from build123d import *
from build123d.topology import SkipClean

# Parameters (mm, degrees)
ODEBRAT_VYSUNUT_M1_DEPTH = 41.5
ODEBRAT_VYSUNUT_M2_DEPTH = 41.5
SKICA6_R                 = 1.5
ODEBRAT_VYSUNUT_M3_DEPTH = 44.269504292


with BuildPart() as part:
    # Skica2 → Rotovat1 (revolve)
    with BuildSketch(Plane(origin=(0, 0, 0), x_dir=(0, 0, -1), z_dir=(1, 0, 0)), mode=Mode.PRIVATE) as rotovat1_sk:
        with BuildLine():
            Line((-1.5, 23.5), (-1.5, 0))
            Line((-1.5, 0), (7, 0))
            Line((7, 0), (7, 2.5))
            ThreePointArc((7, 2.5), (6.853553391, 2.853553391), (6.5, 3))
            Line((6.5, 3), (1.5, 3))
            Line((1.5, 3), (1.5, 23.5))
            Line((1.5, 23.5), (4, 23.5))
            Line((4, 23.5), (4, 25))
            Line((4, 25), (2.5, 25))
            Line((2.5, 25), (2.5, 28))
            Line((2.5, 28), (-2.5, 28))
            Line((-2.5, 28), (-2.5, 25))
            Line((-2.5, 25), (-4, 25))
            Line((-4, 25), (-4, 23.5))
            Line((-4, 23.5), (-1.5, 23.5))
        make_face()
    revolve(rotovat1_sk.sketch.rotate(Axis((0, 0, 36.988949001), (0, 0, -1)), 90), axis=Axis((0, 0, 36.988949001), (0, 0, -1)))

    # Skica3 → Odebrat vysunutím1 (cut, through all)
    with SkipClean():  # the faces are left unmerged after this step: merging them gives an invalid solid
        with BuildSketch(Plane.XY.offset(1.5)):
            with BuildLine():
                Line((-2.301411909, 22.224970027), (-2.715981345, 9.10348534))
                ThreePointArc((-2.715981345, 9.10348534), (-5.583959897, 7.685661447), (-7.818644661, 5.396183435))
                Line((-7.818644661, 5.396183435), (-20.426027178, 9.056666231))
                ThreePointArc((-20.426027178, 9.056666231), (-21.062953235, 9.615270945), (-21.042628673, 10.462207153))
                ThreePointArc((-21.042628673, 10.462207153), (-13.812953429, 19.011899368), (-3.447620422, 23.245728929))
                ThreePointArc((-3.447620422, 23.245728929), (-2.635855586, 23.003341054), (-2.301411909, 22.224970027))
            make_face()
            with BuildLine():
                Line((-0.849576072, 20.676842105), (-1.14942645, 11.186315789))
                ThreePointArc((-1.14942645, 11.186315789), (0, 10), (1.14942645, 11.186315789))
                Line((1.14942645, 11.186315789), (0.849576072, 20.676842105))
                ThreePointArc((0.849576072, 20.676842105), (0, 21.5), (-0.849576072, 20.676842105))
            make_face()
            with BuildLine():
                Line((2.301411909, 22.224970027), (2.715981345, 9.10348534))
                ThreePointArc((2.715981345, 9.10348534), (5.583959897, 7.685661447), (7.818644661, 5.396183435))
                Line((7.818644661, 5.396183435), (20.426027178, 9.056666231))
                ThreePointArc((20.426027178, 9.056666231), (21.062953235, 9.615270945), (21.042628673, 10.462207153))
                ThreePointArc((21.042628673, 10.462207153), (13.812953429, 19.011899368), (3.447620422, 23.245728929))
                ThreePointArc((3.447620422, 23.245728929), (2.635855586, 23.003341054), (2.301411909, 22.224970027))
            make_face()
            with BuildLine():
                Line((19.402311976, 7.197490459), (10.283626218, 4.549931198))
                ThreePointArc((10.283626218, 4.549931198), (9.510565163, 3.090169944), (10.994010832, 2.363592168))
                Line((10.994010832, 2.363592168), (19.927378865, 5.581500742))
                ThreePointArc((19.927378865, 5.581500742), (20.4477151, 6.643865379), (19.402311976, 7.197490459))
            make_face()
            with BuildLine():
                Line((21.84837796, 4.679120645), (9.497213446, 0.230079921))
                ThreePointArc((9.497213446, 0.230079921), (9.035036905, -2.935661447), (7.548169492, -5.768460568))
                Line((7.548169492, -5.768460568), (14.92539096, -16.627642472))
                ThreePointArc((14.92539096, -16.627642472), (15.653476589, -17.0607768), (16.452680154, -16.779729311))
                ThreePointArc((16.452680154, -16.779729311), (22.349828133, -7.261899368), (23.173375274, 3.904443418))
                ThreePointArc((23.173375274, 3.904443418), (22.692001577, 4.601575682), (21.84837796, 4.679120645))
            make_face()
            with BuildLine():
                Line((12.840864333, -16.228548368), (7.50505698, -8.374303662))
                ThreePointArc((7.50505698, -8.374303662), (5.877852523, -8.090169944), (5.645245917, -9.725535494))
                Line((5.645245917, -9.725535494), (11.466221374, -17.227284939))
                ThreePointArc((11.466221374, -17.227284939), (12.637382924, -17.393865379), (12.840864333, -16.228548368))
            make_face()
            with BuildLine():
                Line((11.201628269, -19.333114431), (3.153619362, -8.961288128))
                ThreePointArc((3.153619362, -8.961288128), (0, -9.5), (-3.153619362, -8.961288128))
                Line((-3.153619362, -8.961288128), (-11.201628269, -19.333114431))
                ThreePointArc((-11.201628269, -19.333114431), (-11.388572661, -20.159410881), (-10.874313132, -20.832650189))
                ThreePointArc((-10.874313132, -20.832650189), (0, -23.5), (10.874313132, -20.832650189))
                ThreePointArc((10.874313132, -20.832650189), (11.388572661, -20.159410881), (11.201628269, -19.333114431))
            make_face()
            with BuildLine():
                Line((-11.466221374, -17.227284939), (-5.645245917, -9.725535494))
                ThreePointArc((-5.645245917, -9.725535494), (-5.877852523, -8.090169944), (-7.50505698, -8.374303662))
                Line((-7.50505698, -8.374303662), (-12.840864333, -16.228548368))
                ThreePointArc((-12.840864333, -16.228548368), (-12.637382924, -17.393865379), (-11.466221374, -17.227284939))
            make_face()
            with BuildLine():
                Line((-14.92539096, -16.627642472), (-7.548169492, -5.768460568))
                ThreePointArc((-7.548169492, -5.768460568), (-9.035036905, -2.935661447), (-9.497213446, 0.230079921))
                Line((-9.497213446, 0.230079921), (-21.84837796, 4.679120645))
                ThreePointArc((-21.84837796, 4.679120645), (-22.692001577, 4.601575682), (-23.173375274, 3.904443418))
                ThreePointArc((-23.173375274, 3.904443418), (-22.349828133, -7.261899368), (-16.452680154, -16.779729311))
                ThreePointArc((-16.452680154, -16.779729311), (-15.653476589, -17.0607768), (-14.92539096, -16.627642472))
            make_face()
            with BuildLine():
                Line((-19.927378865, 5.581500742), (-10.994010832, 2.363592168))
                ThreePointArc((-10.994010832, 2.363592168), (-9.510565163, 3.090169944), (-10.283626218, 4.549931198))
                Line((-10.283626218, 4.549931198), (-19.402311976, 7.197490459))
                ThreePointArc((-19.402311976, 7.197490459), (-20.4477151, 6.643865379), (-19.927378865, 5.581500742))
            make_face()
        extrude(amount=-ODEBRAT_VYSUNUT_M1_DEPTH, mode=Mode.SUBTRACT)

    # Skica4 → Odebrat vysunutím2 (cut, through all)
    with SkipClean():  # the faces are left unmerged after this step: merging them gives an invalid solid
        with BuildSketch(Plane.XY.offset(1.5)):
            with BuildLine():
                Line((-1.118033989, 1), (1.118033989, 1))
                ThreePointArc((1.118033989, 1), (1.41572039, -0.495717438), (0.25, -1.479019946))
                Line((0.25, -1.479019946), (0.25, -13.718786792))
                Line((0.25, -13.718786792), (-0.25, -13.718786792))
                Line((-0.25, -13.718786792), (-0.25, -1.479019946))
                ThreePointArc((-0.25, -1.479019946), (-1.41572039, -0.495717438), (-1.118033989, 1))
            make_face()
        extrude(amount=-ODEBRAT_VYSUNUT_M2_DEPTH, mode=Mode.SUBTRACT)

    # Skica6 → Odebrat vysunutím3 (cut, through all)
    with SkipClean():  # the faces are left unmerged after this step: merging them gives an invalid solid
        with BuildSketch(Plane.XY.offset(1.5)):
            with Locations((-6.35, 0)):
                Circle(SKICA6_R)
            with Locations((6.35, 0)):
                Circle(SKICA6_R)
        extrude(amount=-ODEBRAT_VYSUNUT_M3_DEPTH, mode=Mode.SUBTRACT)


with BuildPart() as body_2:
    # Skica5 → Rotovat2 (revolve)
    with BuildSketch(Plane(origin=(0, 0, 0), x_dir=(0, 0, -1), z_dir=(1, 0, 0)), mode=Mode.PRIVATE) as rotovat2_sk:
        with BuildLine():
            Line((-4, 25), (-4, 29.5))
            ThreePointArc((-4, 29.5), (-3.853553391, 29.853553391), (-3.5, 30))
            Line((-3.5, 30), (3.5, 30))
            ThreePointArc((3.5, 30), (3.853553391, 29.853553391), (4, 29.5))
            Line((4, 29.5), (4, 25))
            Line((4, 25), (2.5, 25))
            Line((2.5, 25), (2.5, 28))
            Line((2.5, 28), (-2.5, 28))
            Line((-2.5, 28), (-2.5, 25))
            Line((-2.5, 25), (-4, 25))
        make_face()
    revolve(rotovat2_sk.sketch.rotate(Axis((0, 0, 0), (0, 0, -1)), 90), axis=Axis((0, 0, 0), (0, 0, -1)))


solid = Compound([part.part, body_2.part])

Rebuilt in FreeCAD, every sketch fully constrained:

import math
import FreeCAD as App
import Part
import Sketcher

V = App.Vector

doc = App.newDocument("Part")
body = doc.addObject("PartDesign::Body", "Body")

sketch1 = body.newObject("Sketcher::SketchObject", "Sketch")
sketch1.AttachmentSupport = (doc.getObject("YZ_Plane"), [""])
sketch1.MapMode = "FlatFace"
sketch1.addGeometry(Part.LineSegment(V(23.5, 1.5, 0), V(0, 1.5, 0)), False)
sketch1.addGeometry(Part.LineSegment(V(0, 1.5, 0), V(0, -7, 0)), False)
sketch1.addGeometry(Part.LineSegment(V(0, -7, 0), V(2.5, -7, 0)), False)
sketch1.addGeometry(Part.ArcOfCircle(Part.Circle(V(2.5, -6.5, 0), V(0, 0, 1), 0.5), math.radians(-90), math.radians(0)), False)
sketch1.addGeometry(Part.LineSegment(V(3, -6.5, 0), V(3, -1.5, 0)), False)
sketch1.addGeometry(Part.LineSegment(V(3, -1.5, 0), V(23.5, -1.5, 0)), False)
sketch1.addGeometry(Part.LineSegment(V(23.5, -1.5, 0), V(23.5, -4, 0)), False)
sketch1.addGeometry(Part.LineSegment(V(23.5, -4, 0), V(25, -4, 0)), False)
sketch1.addGeometry(Part.LineSegment(V(25, -4, 0), V(25, -2.5, 0)), False)
sketch1.addGeometry(Part.LineSegment(V(25, -2.5, 0), V(28, -2.5, 0)), False)
sketch1.addGeometry(Part.LineSegment(V(28, -2.5, 0), V(28, 2.5, 0)), False)
sketch1.addGeometry(Part.LineSegment(V(28, 2.5, 0), V(25, 2.5, 0)), False)
sketch1.addGeometry(Part.LineSegment(V(25, 2.5, 0), V(25, 4, 0)), False)
sketch1.addGeometry(Part.LineSegment(V(25, 4, 0), V(23.5, 4, 0)), False)
sketch1.addGeometry(Part.LineSegment(V(23.5, 4, 0), V(23.5, 1.5, 0)), False)
sketch1.addConstraint(Sketcher.Constraint("Coincident", 0, 2, 1, 1))
sketch1.addConstraint(Sketcher.Constraint("Coincident", 1, 2, 2, 1))
sketch1.addConstraint(Sketcher.Constraint("Tangent", 2, 2, 3, 1))
sketch1.addConstraint(Sketcher.Constraint("Tangent", 3, 2, 4, 1))
sketch1.addConstraint(Sketcher.Constraint("Coincident", 4, 2, 5, 1))
sketch1.addConstraint(Sketcher.Constraint("Coincident", 5, 2, 6, 1))
sketch1.addConstraint(Sketcher.Constraint("Coincident", 6, 2, 7, 1))
sketch1.addConstraint(Sketcher.Constraint("Coincident", 7, 2, 8, 1))
sketch1.addConstraint(Sketcher.Constraint("Coincident", 8, 2, 9, 1))
sketch1.addConstraint(Sketcher.Constraint("Coincident", 9, 2, 10, 1))
sketch1.addConstraint(Sketcher.Constraint("Coincident", 10, 2, 11, 1))
sketch1.addConstraint(Sketcher.Constraint("Coincident", 11, 2, 12, 1))
sketch1.addConstraint(Sketcher.Constraint("Coincident", 12, 2, 13, 1))
sketch1.addConstraint(Sketcher.Constraint("Coincident", 13, 2, 14, 1))
sketch1.addConstraint(Sketcher.Constraint("Coincident", 14, 2, 0, 1))
sketch1.addConstraint(Sketcher.Constraint("Horizontal", 0))
sketch1.addConstraint(Sketcher.Constraint("Vertical", 1))
sketch1.addConstraint(Sketcher.Constraint("Horizontal", 2))
sketch1.addConstraint(Sketcher.Constraint("Vertical", 4))
sketch1.addConstraint(Sketcher.Constraint("Horizontal", 5))
sketch1.addConstraint(Sketcher.Constraint("Vertical", 6))
sketch1.addConstraint(Sketcher.Constraint("Horizontal", 7))
sketch1.addConstraint(Sketcher.Constraint("Vertical", 8))
sketch1.addConstraint(Sketcher.Constraint("Horizontal", 9))
sketch1.addConstraint(Sketcher.Constraint("Vertical", 10))
sketch1.addConstraint(Sketcher.Constraint("Horizontal", 11))
sketch1.addConstraint(Sketcher.Constraint("Vertical", 12))
sketch1.addConstraint(Sketcher.Constraint("Horizontal", 13))
sketch1.addConstraint(Sketcher.Constraint("Vertical", 14))
sketch1.addConstraint(Sketcher.Constraint("Symmetric", 8, 2, 11, 2, -1))
sketch1.addConstraint(Sketcher.Constraint("Symmetric", 6, 2, 13, 2, -1))
sketch1.addConstraint(Sketcher.Constraint("PointOnObject", 0, 2, -2))
sketch1.addConstraint(Sketcher.Constraint("Equal", 2, 6))
sketch1.addConstraint(Sketcher.Constraint("Equal", 13, 8))
sketch1.addConstraint(Sketcher.Constraint("Equal", 4, 10))
sketch1.addConstraint(Sketcher.Constraint("Equal", 6, 14))
sketch1.addConstraint(Sketcher.Constraint("Radius", 3, 0.5))
sketch1.addConstraint(Sketcher.Constraint("DistanceX", 9, 1, 9, 2, 3.0))
sketch1.addConstraint(Sketcher.Constraint("DistanceY", 4, 1, 4, 2, 5.0))
sketch1.addConstraint(Sketcher.Constraint("DistanceX", 0, 2, 0, 1, 23.5))
sketch1.addConstraint(Sketcher.Constraint("DistanceX", 2, 1, 2, 2, 2.5))
sketch1.addConstraint(Sketcher.Constraint("DistanceX", 7, 1, 7, 2, 1.5))
revolution = body.newObject("PartDesign::Revolution", "Revolution")
revolution.Profile = sketch1
revolution.ReferenceAxis = (sketch1, ["V_Axis"])
revolution.Angle = 360

sketch2 = body.newObject("Sketcher::SketchObject", "Sketch001")
sketch2.AttachmentSupport = (doc.getObject("XY_Plane"), [""])
sketch2.MapMode = "FlatFace"
sketch2.AttachmentOffset = App.Placement(V(0, 0, 1.5), App.Rotation())
sketch2.addGeometry(Part.LineSegment(V(-2.7, 9.1, 0), V(-2.3, 22.2, 0)), False)
sketch2.addGeometry(Part.ArcOfCircle(Part.Circle(V(-3.3, 22.3, 0), V(0, 0, 1), 1), math.radians(-2), math.radians(98)), False)
sketch2.addGeometry(Part.ArcOfCircle(Part.Circle(V(0, 0, 0), V(0, 0, 1), 23.5), math.radians(98), math.radians(154)), False)
sketch2.addGeometry(Part.ArcOfCircle(Part.Circle(V(-20.1, 10, 0), V(0, 0, 1), 1), math.radians(154), math.radians(254)), False)
sketch2.addGeometry(Part.LineSegment(V(-20.4, 9.1, 0), V(-7.8, 5.4, 0)), False)
sketch2.addGeometry(Part.ArcOfCircle(Part.Circle(V(0, 0, 0), V(0, 0, 1), 9.5), math.radians(107), math.radians(145)), False)
sketch2.addGeometry(Part.LineSegment(V(-0.8, 20.7, 0), V(-1.1, 11.2, 0)), False)
sketch2.addGeometry(Part.ArcOfCircle(Part.Circle(V(0, 11.2, 0), V(0, 0, 1), 1.1), math.radians(178), math.radians(362)), False)
sketch2.addGeometry(Part.LineSegment(V(1.1, 11.2, 0), V(0.8, 20.7, 0)), False)
sketch2.addGeometry(Part.ArcOfCircle(Part.Circle(V(0, 20.6, 0), V(0, 0, 1), 0.8), math.radians(2), math.radians(178)), False)
sketch2.addGeometry(Part.LineSegment(V(2.3, 22.2, 0), V(2.7, 9.1, 0)), False)
sketch2.addGeometry(Part.ArcOfCircle(Part.Circle(V(0, 0, 0), V(0, 0, 1), 9.5), math.radians(35), math.radians(73)), False)
sketch2.addGeometry(Part.LineSegment(V(7.8, 5.4, 0), V(20.4, 9.1, 0)), False)
sketch2.addGeometry(Part.ArcOfCircle(Part.Circle(V(20.1, 10, 0), V(0, 0, 1), 1), math.radians(-74), math.radians(26)), False)
sketch2.addGeometry(Part.ArcOfCircle(Part.Circle(V(0, 0, 0), V(0, 0, 1), 23.5), math.radians(26), math.radians(82)), False)
sketch2.addGeometry(Part.ArcOfCircle(Part.Circle(V(3.3, 22.3, 0), V(0, 0, 1), 1), math.radians(82), math.radians(182)), False)
sketch2.addGeometry(Part.LineSegment(V(19.4, 7.2, 0), V(10.3, 4.5, 0)), False)
sketch2.addGeometry(Part.ArcOfCircle(Part.Circle(V(10.6, 3.4, 0), V(0, 0, 1), 1.1), math.radians(106), math.radians(290)), False)
sketch2.addGeometry(Part.LineSegment(V(11, 2.4, 0), V(19.9, 5.6, 0)), False)
sketch2.addGeometry(Part.ArcOfCircle(Part.Circle(V(19.6, 6.4, 0), V(0, 0, 1), 0.8), math.radians(-70), math.radians(106)), False)
sketch2.addGeometry(Part.LineSegment(V(21.8, 4.7, 0), V(9.5, 0.2, 0)), False)
sketch2.addGeometry(Part.ArcOfCircle(Part.Circle(V(0, 0, 0), V(0, 0, 1), 9.5), math.radians(-37), math.radians(1)), False)
sketch2.addGeometry(Part.LineSegment(V(7.5, -5.8, 0), V(14.9, -16.6, 0)), False)
sketch2.addGeometry(Part.ArcOfCircle(Part.Circle(V(15.8, -16.1, 0), V(0, 0, 1), 1), math.radians(-146), math.radians(-46)), False)
sketch2.addGeometry(Part.ArcOfCircle(Part.Circle(V(0, 0, 0), V(0, 0, 1), 23.5), math.radians(-46), math.radians(10)), False)
sketch2.addGeometry(Part.ArcOfCircle(Part.Circle(V(22.2, 3.7, 0), V(0, 0, 1), 1), math.radians(10), math.radians(110)), False)
sketch2.addGeometry(Part.LineSegment(V(12.8, -16.2, 0), V(7.5, -8.4, 0)), False)
sketch2.addGeometry(Part.ArcOfCircle(Part.Circle(V(6.6, -9, 0), V(0, 0, 1), 1.1), math.radians(34), math.radians(218)), False)
sketch2.addGeometry(Part.LineSegment(V(5.6, -9.7, 0), V(11.5, -17.2, 0)), False)
sketch2.addGeometry(Part.ArcOfCircle(Part.Circle(V(12.1, -16.7, 0), V(0, 0, 1), 0.8), math.radians(-142), math.radians(34)), False)
sketch2.addGeometry(Part.LineSegment(V(11.2, -19.3, 0), V(3.2, -9, 0)), False)
sketch2.addGeometry(Part.ArcOfCircle(Part.Circle(V(0, 0, 0), V(0, 0, 1), 9.5), math.radians(-109), math.radians(-71)), False)
sketch2.addGeometry(Part.LineSegment(V(-3.2, -9, 0), V(-11.2, -19.3, 0)), False)
sketch2.addGeometry(Part.ArcOfCircle(Part.Circle(V(-10.4, -19.9, 0), V(0, 0, 1), 1), math.radians(142), math.radians(242)), False)
sketch2.addGeometry(Part.ArcOfCircle(Part.Circle(V(0, 0, 0), V(0, 0, 1), 23.5), math.radians(-118), math.radians(-62)), False)
sketch2.addGeometry(Part.ArcOfCircle(Part.Circle(V(10.4, -19.9, 0), V(0, 0, 1), 1), math.radians(-62), math.radians(38)), False)
sketch2.addGeometry(Part.LineSegment(V(-11.5, -17.2, 0), V(-5.6, -9.7, 0)), False)
sketch2.addGeometry(Part.ArcOfCircle(Part.Circle(V(-6.6, -9, 0), V(0, 0, 1), 1.1), math.radians(-38), math.radians(146)), False)
sketch2.addGeometry(Part.LineSegment(V(-7.5, -8.4, 0), V(-12.8, -16.2, 0)), False)
sketch2.addGeometry(Part.ArcOfCircle(Part.Circle(V(-12.1, -16.7, 0), V(0, 0, 1), 0.8), math.radians(146), math.radians(322)), False)
sketch2.addGeometry(Part.LineSegment(V(-14.9, -16.6, 0), V(-7.5, -5.8, 0)), False)
sketch2.addGeometry(Part.ArcOfCircle(Part.Circle(V(0, 0, 0), V(0, 0, 1), 9.5), math.radians(179), math.radians(217)), False)
sketch2.addGeometry(Part.LineSegment(V(-9.5, 0.2, 0), V(-21.8, 4.7, 0)), False)
sketch2.addGeometry(Part.ArcOfCircle(Part.Circle(V(-22.2, 3.7, 0), V(0, 0, 1), 1), math.radians(70), math.radians(170)), False)
sketch2.addGeometry(Part.ArcOfCircle(Part.Circle(V(0, 0, 0), V(0, 0, 1), 23.5), math.radians(170), math.radians(226)), False)
sketch2.addGeometry(Part.ArcOfCircle(Part.Circle(V(-15.8, -16.1, 0), V(0, 0, 1), 1), math.radians(-134), math.radians(-34)), False)
sketch2.addGeometry(Part.LineSegment(V(-19.9, 5.6, 0), V(-11, 2.4, 0)), False)
sketch2.addGeometry(Part.ArcOfCircle(Part.Circle(V(-10.6, 3.4, 0), V(0, 0, 1), 1.1), math.radians(-110), math.radians(74)), False)
sketch2.addGeometry(Part.LineSegment(V(-10.3, 4.5, 0), V(-19.4, 7.2, 0)), False)
sketch2.addGeometry(Part.ArcOfCircle(Part.Circle(V(-19.6, 6.4, 0), V(0, 0, 1), 0.8), math.radians(74), math.radians(250)), False)
sketch2.addConstraint(Sketcher.Constraint("Tangent", 0, 2, 1, 1))
sketch2.addConstraint(Sketcher.Constraint("Tangent", 1, 2, 2, 1))
sketch2.addConstraint(Sketcher.Constraint("Tangent", 2, 2, 3, 1))
sketch2.addConstraint(Sketcher.Constraint("Tangent", 3, 2, 4, 1))
sketch2.addConstraint(Sketcher.Constraint("Coincident", 4, 2, 5, 2))
sketch2.addConstraint(Sketcher.Constraint("Coincident", 5, 1, 0, 1))
sketch2.addConstraint(Sketcher.Constraint("Tangent", 6, 2, 7, 1))
sketch2.addConstraint(Sketcher.Constraint("Tangent", 7, 2, 8, 1))
sketch2.addConstraint(Sketcher.Constraint("Tangent", 8, 2, 9, 1))
sketch2.addConstraint(Sketcher.Constraint("Tangent", 9, 2, 6, 1))
sketch2.addConstraint(Sketcher.Constraint("Coincident", 10, 2, 11, 2))
sketch2.addConstraint(Sketcher.Constraint("Coincident", 11, 1, 12, 1))
sketch2.addConstraint(Sketcher.Constraint("Tangent", 12, 2, 13, 1))
sketch2.addConstraint(Sketcher.Constraint("Tangent", 13, 2, 14, 1))
sketch2.addConstraint(Sketcher.Constraint("Tangent", 14, 2, 15, 1))
sketch2.addConstraint(Sketcher.Constraint("Tangent", 15, 2, 10, 1))
sketch2.addConstraint(Sketcher.Constraint("Tangent", 16, 2, 17, 1))
sketch2.addConstraint(Sketcher.Constraint("Tangent", 17, 2, 18, 1))
sketch2.addConstraint(Sketcher.Constraint("Tangent", 18, 2, 19, 1))
sketch2.addConstraint(Sketcher.Constraint("Tangent", 19, 2, 16, 1))
sketch2.addConstraint(Sketcher.Constraint("Coincident", 20, 2, 21, 2))
sketch2.addConstraint(Sketcher.Constraint("Coincident", 21, 1, 22, 1))
sketch2.addConstraint(Sketcher.Constraint("Tangent", 22, 2, 23, 1))
sketch2.addConstraint(Sketcher.Constraint("Tangent", 23, 2, 24, 1))
sketch2.addConstraint(Sketcher.Constraint("Tangent", 24, 2, 25, 1))
sketch2.addConstraint(Sketcher.Constraint("Tangent", 25, 2, 20, 1))
sketch2.addConstraint(Sketcher.Constraint("Tangent", 26, 2, 27, 1))
sketch2.addConstraint(Sketcher.Constraint("Tangent", 27, 2, 28, 1))
sketch2.addConstraint(Sketcher.Constraint("Tangent", 28, 2, 29, 1))
sketch2.addConstraint(Sketcher.Constraint("Tangent", 29, 2, 26, 1))
sketch2.addConstraint(Sketcher.Constraint("Coincident", 30, 2, 31, 2))
sketch2.addConstraint(Sketcher.Constraint("Coincident", 31, 1, 32, 1))
sketch2.addConstraint(Sketcher.Constraint("Tangent", 32, 2, 33, 1))
sketch2.addConstraint(Sketcher.Constraint("Tangent", 33, 2, 34, 1))
sketch2.addConstraint(Sketcher.Constraint("Tangent", 34, 2, 35, 1))
sketch2.addConstraint(Sketcher.Constraint("Tangent", 35, 2, 30, 1))
sketch2.addConstraint(Sketcher.Constraint("Tangent", 36, 2, 37, 1))
sketch2.addConstraint(Sketcher.Constraint("Tangent", 37, 2, 38, 1))
sketch2.addConstraint(Sketcher.Constraint("Tangent", 38, 2, 39, 1))
sketch2.addConstraint(Sketcher.Constraint("Tangent", 39, 2, 36, 1))
sketch2.addConstraint(Sketcher.Constraint("Coincident", 40, 2, 41, 2))
sketch2.addConstraint(Sketcher.Constraint("Coincident", 41, 1, 42, 1))
sketch2.addConstraint(Sketcher.Constraint("Tangent", 42, 2, 43, 1))
sketch2.addConstraint(Sketcher.Constraint("Tangent", 43, 2, 44, 1))
sketch2.addConstraint(Sketcher.Constraint("Tangent", 44, 2, 45, 1))
sketch2.addConstraint(Sketcher.Constraint("Tangent", 45, 2, 40, 1))
sketch2.addConstraint(Sketcher.Constraint("Tangent", 46, 2, 47, 1))
sketch2.addConstraint(Sketcher.Constraint("Tangent", 47, 2, 48, 1))
sketch2.addConstraint(Sketcher.Constraint("Tangent", 48, 2, 49, 1))
sketch2.addConstraint(Sketcher.Constraint("Tangent", 49, 2, 46, 1))
sketch2.addConstraint(Sketcher.Constraint("Coincident", 2, 3, -1, 1))
sketch2.addConstraint(Sketcher.Constraint("Coincident", 5, 3, -1, 1))
sketch2.addConstraint(Sketcher.Constraint("Coincident", 11, 3, -1, 1))
sketch2.addConstraint(Sketcher.Constraint("Coincident", 14, 3, -1, 1))
sketch2.addConstraint(Sketcher.Constraint("Coincident", 21, 3, -1, 1))
sketch2.addConstraint(Sketcher.Constraint("Coincident", 24, 3, -1, 1))
sketch2.addConstraint(Sketcher.Constraint("Coincident", 31, 3, -1, 1))
sketch2.addConstraint(Sketcher.Constraint("Coincident", 34, 3, -1, 1))
sketch2.addConstraint(Sketcher.Constraint("Coincident", 41, 3, -1, 1))
sketch2.addConstraint(Sketcher.Constraint("Coincident", 44, 3, -1, 1))
sketch2.addConstraint(Sketcher.Constraint("Equal", 1, 3))
sketch2.addConstraint(Sketcher.Constraint("Equal", 5, 11))
sketch2.addConstraint(Sketcher.Constraint("Equal", 3, 13))
sketch2.addConstraint(Sketcher.Constraint("Equal", 2, 14))
sketch2.addConstraint(Sketcher.Constraint("Equal", 13, 15))
sketch2.addConstraint(Sketcher.Constraint("Equal", 7, 17))
sketch2.addConstraint(Sketcher.Constraint("Equal", 9, 19))
sketch2.addConstraint(Sketcher.Constraint("Equal", 11, 21))
sketch2.addConstraint(Sketcher.Constraint("Equal", 15, 23))
sketch2.addConstraint(Sketcher.Constraint("Equal", 14, 24))
sketch2.addConstraint(Sketcher.Constraint("Equal", 23, 25))
sketch2.addConstraint(Sketcher.Constraint("Equal", 17, 27))
sketch2.addConstraint(Sketcher.Constraint("Equal", 19, 29))
sketch2.addConstraint(Sketcher.Constraint("Equal", 21, 31))
sketch2.addConstraint(Sketcher.Constraint("Equal", 25, 33))
sketch2.addConstraint(Sketcher.Constraint("Equal", 24, 34))
sketch2.addConstraint(Sketcher.Constraint("Equal", 33, 35))
sketch2.addConstraint(Sketcher.Constraint("Equal", 27, 37))
sketch2.addConstraint(Sketcher.Constraint("Equal", 29, 39))
sketch2.addConstraint(Sketcher.Constraint("Equal", 31, 41))
sketch2.addConstraint(Sketcher.Constraint("Equal", 35, 43))
sketch2.addConstraint(Sketcher.Constraint("Equal", 34, 44))
sketch2.addConstraint(Sketcher.Constraint("Equal", 43, 45))
sketch2.addConstraint(Sketcher.Constraint("Equal", 37, 47))
sketch2.addConstraint(Sketcher.Constraint("Equal", 39, 49))
sketch2.addConstraint(Sketcher.Constraint("Symmetric", 27, 3, 37, 3, -2))
sketch2.addConstraint(Sketcher.Constraint("Symmetric", 29, 3, 39, 3, -2))
sketch2.addConstraint(Sketcher.Constraint("Symmetric", 17, 3, 47, 3, -2))
sketch2.addConstraint(Sketcher.Constraint("Symmetric", 19, 3, 49, 3, -2))
sketch2.addConstraint(Sketcher.Constraint("Symmetric", 6, 2, 7, 2, -2))
sketch2.addConstraint(Sketcher.Constraint("Symmetric", 3, 2, 12, 2, -2))
sketch2.addConstraint(Sketcher.Constraint("Symmetric", 0, 2, 15, 2, -2))
sketch2.addConstraint(Sketcher.Constraint("Symmetric", 32, 2, 35, 2, -2))
sketch2.addConstraint(Sketcher.Constraint("Symmetric", 25, 2, 42, 2, -2))
sketch2.addConstraint(Sketcher.Constraint("Symmetric", 22, 2, 45, 2, -2))
sketch2.addConstraint(Sketcher.Constraint("Parallel", 0, 6))
sketch2.addConstraint(Sketcher.Constraint("Parallel", 12, 16))
sketch2.addConstraint(Sketcher.Constraint("Parallel", 18, 20))
sketch2.addConstraint(Sketcher.Constraint("Parallel", 22, 26))
sketch2.addConstraint(Sketcher.Constraint("Parallel", 28, 30))
sketch2.addConstraint(Sketcher.Constraint("Equal", 0, 4))
sketch2.addConstraint(Sketcher.Constraint("Equal", 8, 16))
sketch2.addConstraint(Sketcher.Constraint("Equal", 12, 20))
sketch2.addConstraint(Sketcher.Constraint("Equal", 20, 22))
sketch2.addConstraint(Sketcher.Constraint("Equal", 18, 26))
sketch2.addConstraint(Sketcher.Constraint("Equal", 22, 30))
sketch2.addConstraint(Sketcher.Constraint("Radius", 1, 1.0))
sketch2.addConstraint(Sketcher.Constraint("Radius", 2, 23.5))
sketch2.addConstraint(Sketcher.Constraint("Radius", 5, 9.5))
sketch2.addConstraint(Sketcher.Constraint("Radius", 7, 1.15))
sketch2.addConstraint(Sketcher.Constraint("Radius", 9, 0.85))
sketch2.addConstraint(Sketcher.Constraint("DistanceY", -1, 1, 7, 3, 11.15))
sketch2.addConstraint(Sketcher.Constraint("DistanceY", -1, 1, 9, 3, 20.65))
sketch2.addConstraint(Sketcher.Constraint("DistanceY", -1, 1, 19, 3, 6.381201))
sketch2.addConstraint(Sketcher.Constraint("DistanceY", 23, 3, -1, 1, 16.065698))
sketch2.addConstraint(Sketcher.Constraint("DistanceY", 29, 3, -1, 1, 16.706201))
sketch2.addConstraint(Sketcher.Constraint("DistanceY", -1, 1, 18, 2, 5.581501))
sketch2.addConstraint(Sketcher.Constraint("DistanceY", -1, 1, 1, 3, 22.256549))
sketch2.addConstraint(Sketcher.Constraint("DistanceX", -1, 1, 17, 3, 10.60428))
sketch2.addConstraint(Sketcher.Constraint("DistanceX", -1, 1, 28, 2, 11.466221))
pocket1 = body.newObject("PartDesign::Pocket", "Pocket")
pocket1.Profile = sketch2
pocket1.Type = "ThroughAll"

sketch3 = body.newObject("Sketcher::SketchObject", "Sketch002")
sketch3.AttachmentSupport = (doc.getObject("XY_Plane"), [""])
sketch3.MapMode = "FlatFace"
sketch3.AttachmentOffset = App.Placement(V(0, 0, 1.5), App.Rotation())
sketch3.addGeometry(Part.LineSegment(V(1.1, 1, 0), V(-1.1, 1, 0)), False)
sketch3.addGeometry(Part.ArcOfCircle(Part.Circle(V(0, 0, 0), V(0, 0, 1), 1.5), math.radians(138), math.radians(260)), False)
sketch3.addGeometry(Part.LineSegment(V(-0.2, -1.5, 0), V(-0.2, -13.7, 0)), False)
sketch3.addGeometry(Part.LineSegment(V(-0.2, -13.7, 0), V(0.2, -13.7, 0)), False)
sketch3.addGeometry(Part.LineSegment(V(0.2, -13.7, 0), V(0.2, -1.5, 0)), False)
sketch3.addGeometry(Part.ArcOfCircle(Part.Circle(V(0, 0, 0), V(0, 0, 1), 1.5), math.radians(-80), math.radians(42)), False)
sketch3.addConstraint(Sketcher.Constraint("Coincident", 0, 2, 1, 1))
sketch3.addConstraint(Sketcher.Constraint("Coincident", 1, 2, 2, 1))
sketch3.addConstraint(Sketcher.Constraint("Coincident", 2, 2, 3, 1))
sketch3.addConstraint(Sketcher.Constraint("Coincident", 3, 2, 4, 1))
sketch3.addConstraint(Sketcher.Constraint("Coincident", 4, 2, 5, 1))
sketch3.addConstraint(Sketcher.Constraint("Coincident", 5, 2, 0, 1))
sketch3.addConstraint(Sketcher.Constraint("Horizontal", 0))
sketch3.addConstraint(Sketcher.Constraint("Vertical", 2))
sketch3.addConstraint(Sketcher.Constraint("Horizontal", 3))
sketch3.addConstraint(Sketcher.Constraint("Vertical", 4))
sketch3.addConstraint(Sketcher.Constraint("Coincident", 1, 3, -1, 1))
sketch3.addConstraint(Sketcher.Constraint("Coincident", 5, 3, -1, 1))
sketch3.addConstraint(Sketcher.Constraint("Equal", 1, 5))
sketch3.addConstraint(Sketcher.Constraint("Horizontal", 1, 2, 4, 2))
sketch3.addConstraint(Sketcher.Constraint("Radius", 1, 1.5))
sketch3.addConstraint(Sketcher.Constraint("DistanceX", 3, 1, 3, 2, 0.5))
sketch3.addConstraint(Sketcher.Constraint("DistanceY", -1, 1, 0, 2, 1.0))
sketch3.addConstraint(Sketcher.Constraint("DistanceY", 2, 2, 2, 1, 12.239767))
pocket2 = body.newObject("PartDesign::Pocket", "Pocket001")
pocket2.Profile = sketch3
pocket2.Type = "ThroughAll"

sketch4 = body.newObject("Sketcher::SketchObject", "Sketch003")
sketch4.AttachmentSupport = (doc.getObject("XY_Plane"), [""])
sketch4.MapMode = "FlatFace"
sketch4.AttachmentOffset = App.Placement(V(0, 0, 1.5), App.Rotation())
sketch4.addGeometry(Part.Circle(V(-6.3, 0, 0), V(0, 0, 1), 1.5), False)
sketch4.addGeometry(Part.Circle(V(6.3, 0, 0), V(0, 0, 1), 1.5), False)
sketch4.addConstraint(Sketcher.Constraint("Equal", 0, 1))
sketch4.addConstraint(Sketcher.Constraint("Symmetric", 0, 3, 1, 3, -1, 1))
sketch4.addConstraint(Sketcher.Constraint("PointOnObject", 0, 3, -1))
sketch4.addConstraint(Sketcher.Constraint("Diameter", 0, 3.0))
sketch4.addConstraint(Sketcher.Constraint("DistanceX", 0, 3, 1, 3, 12.7))
pocket3 = body.newObject("PartDesign::Pocket", "Pocket002")
pocket3.Profile = sketch4
pocket3.Type = "ThroughAll"
body2 = doc.addObject("PartDesign::Body", "Body001")

sketch5 = body2.newObject("Sketcher::SketchObject", "Sketch004")
sketch5.AttachmentSupport = (doc.getObject("YZ_Plane001"), [""])
sketch5.MapMode = "FlatFace"
sketch5.addGeometry(Part.LineSegment(V(29.5, 4, 0), V(25, 4, 0)), False)
sketch5.addGeometry(Part.LineSegment(V(25, 4, 0), V(25, 2.5, 0)), False)
sketch5.addGeometry(Part.LineSegment(V(25, 2.5, 0), V(28, 2.5, 0)), False)
sketch5.addGeometry(Part.LineSegment(V(28, 2.5, 0), V(28, -2.5, 0)), False)
sketch5.addGeometry(Part.LineSegment(V(28, -2.5, 0), V(25, -2.5, 0)), False)
sketch5.addGeometry(Part.LineSegment(V(25, -2.5, 0), V(25, -4, 0)), False)
sketch5.addGeometry(Part.LineSegment(V(25, -4, 0), V(29.5, -4, 0)), False)
sketch5.addGeometry(Part.ArcOfCircle(Part.Circle(V(29.5, -3.5, 0), V(0, 0, 1), 0.5), math.radians(-90), math.radians(0)), False)
sketch5.addGeometry(Part.LineSegment(V(30, -3.5, 0), V(30, 3.5, 0)), False)
sketch5.addGeometry(Part.ArcOfCircle(Part.Circle(V(29.5, 3.5, 0), V(0, 0, 1), 0.5), math.radians(0), math.radians(90)), False)
sketch5.addConstraint(Sketcher.Constraint("Coincident", 0, 2, 1, 1))
sketch5.addConstraint(Sketcher.Constraint("Coincident", 1, 2, 2, 1))
sketch5.addConstraint(Sketcher.Constraint("Coincident", 2, 2, 3, 1))
sketch5.addConstraint(Sketcher.Constraint("Coincident", 3, 2, 4, 1))
sketch5.addConstraint(Sketcher.Constraint("Coincident", 4, 2, 5, 1))
sketch5.addConstraint(Sketcher.Constraint("Coincident", 5, 2, 6, 1))
sketch5.addConstraint(Sketcher.Constraint("Tangent", 6, 2, 7, 1))
sketch5.addConstraint(Sketcher.Constraint("Tangent", 7, 2, 8, 1))
sketch5.addConstraint(Sketcher.Constraint("Tangent", 8, 2, 9, 1))
sketch5.addConstraint(Sketcher.Constraint("Tangent", 9, 2, 0, 1))
sketch5.addConstraint(Sketcher.Constraint("Horizontal", 0))
sketch5.addConstraint(Sketcher.Constraint("Vertical", 1))
sketch5.addConstraint(Sketcher.Constraint("Horizontal", 2))
sketch5.addConstraint(Sketcher.Constraint("Vertical", 3))
sketch5.addConstraint(Sketcher.Constraint("Horizontal", 4))
sketch5.addConstraint(Sketcher.Constraint("Vertical", 5))
sketch5.addConstraint(Sketcher.Constraint("Horizontal", 6))
sketch5.addConstraint(Sketcher.Constraint("Vertical", 8))
sketch5.addConstraint(Sketcher.Constraint("Equal", 7, 9))
sketch5.addConstraint(Sketcher.Constraint("Symmetric", 1, 2, 4, 2, -1))
sketch5.addConstraint(Sketcher.Constraint("Equal", 1, 5))
sketch5.addConstraint(Sketcher.Constraint("Radius", 7, 0.5))
sketch5.addConstraint(Sketcher.Constraint("DistanceX", 2, 1, 2, 2, 3.0))
sketch5.addConstraint(Sketcher.Constraint("DistanceY", 3, 2, 3, 1, 5.0))
sketch5.addConstraint(Sketcher.Constraint("DistanceY", 8, 1, 8, 2, 7.0))
sketch5.addConstraint(Sketcher.Constraint("DistanceX", 0, 2, 0, 1, 4.5))
sketch5.addConstraint(Sketcher.Constraint("DistanceX", -1, 1, 0, 2, 25.0))
revolution2 = body2.newObject("PartDesign::Revolution", "Revolution001")
revolution2.Profile = sketch5
revolution2.ReferenceAxis = (sketch5, ["V_Axis"])
revolution2.Angle = 360

doc.recompute()
